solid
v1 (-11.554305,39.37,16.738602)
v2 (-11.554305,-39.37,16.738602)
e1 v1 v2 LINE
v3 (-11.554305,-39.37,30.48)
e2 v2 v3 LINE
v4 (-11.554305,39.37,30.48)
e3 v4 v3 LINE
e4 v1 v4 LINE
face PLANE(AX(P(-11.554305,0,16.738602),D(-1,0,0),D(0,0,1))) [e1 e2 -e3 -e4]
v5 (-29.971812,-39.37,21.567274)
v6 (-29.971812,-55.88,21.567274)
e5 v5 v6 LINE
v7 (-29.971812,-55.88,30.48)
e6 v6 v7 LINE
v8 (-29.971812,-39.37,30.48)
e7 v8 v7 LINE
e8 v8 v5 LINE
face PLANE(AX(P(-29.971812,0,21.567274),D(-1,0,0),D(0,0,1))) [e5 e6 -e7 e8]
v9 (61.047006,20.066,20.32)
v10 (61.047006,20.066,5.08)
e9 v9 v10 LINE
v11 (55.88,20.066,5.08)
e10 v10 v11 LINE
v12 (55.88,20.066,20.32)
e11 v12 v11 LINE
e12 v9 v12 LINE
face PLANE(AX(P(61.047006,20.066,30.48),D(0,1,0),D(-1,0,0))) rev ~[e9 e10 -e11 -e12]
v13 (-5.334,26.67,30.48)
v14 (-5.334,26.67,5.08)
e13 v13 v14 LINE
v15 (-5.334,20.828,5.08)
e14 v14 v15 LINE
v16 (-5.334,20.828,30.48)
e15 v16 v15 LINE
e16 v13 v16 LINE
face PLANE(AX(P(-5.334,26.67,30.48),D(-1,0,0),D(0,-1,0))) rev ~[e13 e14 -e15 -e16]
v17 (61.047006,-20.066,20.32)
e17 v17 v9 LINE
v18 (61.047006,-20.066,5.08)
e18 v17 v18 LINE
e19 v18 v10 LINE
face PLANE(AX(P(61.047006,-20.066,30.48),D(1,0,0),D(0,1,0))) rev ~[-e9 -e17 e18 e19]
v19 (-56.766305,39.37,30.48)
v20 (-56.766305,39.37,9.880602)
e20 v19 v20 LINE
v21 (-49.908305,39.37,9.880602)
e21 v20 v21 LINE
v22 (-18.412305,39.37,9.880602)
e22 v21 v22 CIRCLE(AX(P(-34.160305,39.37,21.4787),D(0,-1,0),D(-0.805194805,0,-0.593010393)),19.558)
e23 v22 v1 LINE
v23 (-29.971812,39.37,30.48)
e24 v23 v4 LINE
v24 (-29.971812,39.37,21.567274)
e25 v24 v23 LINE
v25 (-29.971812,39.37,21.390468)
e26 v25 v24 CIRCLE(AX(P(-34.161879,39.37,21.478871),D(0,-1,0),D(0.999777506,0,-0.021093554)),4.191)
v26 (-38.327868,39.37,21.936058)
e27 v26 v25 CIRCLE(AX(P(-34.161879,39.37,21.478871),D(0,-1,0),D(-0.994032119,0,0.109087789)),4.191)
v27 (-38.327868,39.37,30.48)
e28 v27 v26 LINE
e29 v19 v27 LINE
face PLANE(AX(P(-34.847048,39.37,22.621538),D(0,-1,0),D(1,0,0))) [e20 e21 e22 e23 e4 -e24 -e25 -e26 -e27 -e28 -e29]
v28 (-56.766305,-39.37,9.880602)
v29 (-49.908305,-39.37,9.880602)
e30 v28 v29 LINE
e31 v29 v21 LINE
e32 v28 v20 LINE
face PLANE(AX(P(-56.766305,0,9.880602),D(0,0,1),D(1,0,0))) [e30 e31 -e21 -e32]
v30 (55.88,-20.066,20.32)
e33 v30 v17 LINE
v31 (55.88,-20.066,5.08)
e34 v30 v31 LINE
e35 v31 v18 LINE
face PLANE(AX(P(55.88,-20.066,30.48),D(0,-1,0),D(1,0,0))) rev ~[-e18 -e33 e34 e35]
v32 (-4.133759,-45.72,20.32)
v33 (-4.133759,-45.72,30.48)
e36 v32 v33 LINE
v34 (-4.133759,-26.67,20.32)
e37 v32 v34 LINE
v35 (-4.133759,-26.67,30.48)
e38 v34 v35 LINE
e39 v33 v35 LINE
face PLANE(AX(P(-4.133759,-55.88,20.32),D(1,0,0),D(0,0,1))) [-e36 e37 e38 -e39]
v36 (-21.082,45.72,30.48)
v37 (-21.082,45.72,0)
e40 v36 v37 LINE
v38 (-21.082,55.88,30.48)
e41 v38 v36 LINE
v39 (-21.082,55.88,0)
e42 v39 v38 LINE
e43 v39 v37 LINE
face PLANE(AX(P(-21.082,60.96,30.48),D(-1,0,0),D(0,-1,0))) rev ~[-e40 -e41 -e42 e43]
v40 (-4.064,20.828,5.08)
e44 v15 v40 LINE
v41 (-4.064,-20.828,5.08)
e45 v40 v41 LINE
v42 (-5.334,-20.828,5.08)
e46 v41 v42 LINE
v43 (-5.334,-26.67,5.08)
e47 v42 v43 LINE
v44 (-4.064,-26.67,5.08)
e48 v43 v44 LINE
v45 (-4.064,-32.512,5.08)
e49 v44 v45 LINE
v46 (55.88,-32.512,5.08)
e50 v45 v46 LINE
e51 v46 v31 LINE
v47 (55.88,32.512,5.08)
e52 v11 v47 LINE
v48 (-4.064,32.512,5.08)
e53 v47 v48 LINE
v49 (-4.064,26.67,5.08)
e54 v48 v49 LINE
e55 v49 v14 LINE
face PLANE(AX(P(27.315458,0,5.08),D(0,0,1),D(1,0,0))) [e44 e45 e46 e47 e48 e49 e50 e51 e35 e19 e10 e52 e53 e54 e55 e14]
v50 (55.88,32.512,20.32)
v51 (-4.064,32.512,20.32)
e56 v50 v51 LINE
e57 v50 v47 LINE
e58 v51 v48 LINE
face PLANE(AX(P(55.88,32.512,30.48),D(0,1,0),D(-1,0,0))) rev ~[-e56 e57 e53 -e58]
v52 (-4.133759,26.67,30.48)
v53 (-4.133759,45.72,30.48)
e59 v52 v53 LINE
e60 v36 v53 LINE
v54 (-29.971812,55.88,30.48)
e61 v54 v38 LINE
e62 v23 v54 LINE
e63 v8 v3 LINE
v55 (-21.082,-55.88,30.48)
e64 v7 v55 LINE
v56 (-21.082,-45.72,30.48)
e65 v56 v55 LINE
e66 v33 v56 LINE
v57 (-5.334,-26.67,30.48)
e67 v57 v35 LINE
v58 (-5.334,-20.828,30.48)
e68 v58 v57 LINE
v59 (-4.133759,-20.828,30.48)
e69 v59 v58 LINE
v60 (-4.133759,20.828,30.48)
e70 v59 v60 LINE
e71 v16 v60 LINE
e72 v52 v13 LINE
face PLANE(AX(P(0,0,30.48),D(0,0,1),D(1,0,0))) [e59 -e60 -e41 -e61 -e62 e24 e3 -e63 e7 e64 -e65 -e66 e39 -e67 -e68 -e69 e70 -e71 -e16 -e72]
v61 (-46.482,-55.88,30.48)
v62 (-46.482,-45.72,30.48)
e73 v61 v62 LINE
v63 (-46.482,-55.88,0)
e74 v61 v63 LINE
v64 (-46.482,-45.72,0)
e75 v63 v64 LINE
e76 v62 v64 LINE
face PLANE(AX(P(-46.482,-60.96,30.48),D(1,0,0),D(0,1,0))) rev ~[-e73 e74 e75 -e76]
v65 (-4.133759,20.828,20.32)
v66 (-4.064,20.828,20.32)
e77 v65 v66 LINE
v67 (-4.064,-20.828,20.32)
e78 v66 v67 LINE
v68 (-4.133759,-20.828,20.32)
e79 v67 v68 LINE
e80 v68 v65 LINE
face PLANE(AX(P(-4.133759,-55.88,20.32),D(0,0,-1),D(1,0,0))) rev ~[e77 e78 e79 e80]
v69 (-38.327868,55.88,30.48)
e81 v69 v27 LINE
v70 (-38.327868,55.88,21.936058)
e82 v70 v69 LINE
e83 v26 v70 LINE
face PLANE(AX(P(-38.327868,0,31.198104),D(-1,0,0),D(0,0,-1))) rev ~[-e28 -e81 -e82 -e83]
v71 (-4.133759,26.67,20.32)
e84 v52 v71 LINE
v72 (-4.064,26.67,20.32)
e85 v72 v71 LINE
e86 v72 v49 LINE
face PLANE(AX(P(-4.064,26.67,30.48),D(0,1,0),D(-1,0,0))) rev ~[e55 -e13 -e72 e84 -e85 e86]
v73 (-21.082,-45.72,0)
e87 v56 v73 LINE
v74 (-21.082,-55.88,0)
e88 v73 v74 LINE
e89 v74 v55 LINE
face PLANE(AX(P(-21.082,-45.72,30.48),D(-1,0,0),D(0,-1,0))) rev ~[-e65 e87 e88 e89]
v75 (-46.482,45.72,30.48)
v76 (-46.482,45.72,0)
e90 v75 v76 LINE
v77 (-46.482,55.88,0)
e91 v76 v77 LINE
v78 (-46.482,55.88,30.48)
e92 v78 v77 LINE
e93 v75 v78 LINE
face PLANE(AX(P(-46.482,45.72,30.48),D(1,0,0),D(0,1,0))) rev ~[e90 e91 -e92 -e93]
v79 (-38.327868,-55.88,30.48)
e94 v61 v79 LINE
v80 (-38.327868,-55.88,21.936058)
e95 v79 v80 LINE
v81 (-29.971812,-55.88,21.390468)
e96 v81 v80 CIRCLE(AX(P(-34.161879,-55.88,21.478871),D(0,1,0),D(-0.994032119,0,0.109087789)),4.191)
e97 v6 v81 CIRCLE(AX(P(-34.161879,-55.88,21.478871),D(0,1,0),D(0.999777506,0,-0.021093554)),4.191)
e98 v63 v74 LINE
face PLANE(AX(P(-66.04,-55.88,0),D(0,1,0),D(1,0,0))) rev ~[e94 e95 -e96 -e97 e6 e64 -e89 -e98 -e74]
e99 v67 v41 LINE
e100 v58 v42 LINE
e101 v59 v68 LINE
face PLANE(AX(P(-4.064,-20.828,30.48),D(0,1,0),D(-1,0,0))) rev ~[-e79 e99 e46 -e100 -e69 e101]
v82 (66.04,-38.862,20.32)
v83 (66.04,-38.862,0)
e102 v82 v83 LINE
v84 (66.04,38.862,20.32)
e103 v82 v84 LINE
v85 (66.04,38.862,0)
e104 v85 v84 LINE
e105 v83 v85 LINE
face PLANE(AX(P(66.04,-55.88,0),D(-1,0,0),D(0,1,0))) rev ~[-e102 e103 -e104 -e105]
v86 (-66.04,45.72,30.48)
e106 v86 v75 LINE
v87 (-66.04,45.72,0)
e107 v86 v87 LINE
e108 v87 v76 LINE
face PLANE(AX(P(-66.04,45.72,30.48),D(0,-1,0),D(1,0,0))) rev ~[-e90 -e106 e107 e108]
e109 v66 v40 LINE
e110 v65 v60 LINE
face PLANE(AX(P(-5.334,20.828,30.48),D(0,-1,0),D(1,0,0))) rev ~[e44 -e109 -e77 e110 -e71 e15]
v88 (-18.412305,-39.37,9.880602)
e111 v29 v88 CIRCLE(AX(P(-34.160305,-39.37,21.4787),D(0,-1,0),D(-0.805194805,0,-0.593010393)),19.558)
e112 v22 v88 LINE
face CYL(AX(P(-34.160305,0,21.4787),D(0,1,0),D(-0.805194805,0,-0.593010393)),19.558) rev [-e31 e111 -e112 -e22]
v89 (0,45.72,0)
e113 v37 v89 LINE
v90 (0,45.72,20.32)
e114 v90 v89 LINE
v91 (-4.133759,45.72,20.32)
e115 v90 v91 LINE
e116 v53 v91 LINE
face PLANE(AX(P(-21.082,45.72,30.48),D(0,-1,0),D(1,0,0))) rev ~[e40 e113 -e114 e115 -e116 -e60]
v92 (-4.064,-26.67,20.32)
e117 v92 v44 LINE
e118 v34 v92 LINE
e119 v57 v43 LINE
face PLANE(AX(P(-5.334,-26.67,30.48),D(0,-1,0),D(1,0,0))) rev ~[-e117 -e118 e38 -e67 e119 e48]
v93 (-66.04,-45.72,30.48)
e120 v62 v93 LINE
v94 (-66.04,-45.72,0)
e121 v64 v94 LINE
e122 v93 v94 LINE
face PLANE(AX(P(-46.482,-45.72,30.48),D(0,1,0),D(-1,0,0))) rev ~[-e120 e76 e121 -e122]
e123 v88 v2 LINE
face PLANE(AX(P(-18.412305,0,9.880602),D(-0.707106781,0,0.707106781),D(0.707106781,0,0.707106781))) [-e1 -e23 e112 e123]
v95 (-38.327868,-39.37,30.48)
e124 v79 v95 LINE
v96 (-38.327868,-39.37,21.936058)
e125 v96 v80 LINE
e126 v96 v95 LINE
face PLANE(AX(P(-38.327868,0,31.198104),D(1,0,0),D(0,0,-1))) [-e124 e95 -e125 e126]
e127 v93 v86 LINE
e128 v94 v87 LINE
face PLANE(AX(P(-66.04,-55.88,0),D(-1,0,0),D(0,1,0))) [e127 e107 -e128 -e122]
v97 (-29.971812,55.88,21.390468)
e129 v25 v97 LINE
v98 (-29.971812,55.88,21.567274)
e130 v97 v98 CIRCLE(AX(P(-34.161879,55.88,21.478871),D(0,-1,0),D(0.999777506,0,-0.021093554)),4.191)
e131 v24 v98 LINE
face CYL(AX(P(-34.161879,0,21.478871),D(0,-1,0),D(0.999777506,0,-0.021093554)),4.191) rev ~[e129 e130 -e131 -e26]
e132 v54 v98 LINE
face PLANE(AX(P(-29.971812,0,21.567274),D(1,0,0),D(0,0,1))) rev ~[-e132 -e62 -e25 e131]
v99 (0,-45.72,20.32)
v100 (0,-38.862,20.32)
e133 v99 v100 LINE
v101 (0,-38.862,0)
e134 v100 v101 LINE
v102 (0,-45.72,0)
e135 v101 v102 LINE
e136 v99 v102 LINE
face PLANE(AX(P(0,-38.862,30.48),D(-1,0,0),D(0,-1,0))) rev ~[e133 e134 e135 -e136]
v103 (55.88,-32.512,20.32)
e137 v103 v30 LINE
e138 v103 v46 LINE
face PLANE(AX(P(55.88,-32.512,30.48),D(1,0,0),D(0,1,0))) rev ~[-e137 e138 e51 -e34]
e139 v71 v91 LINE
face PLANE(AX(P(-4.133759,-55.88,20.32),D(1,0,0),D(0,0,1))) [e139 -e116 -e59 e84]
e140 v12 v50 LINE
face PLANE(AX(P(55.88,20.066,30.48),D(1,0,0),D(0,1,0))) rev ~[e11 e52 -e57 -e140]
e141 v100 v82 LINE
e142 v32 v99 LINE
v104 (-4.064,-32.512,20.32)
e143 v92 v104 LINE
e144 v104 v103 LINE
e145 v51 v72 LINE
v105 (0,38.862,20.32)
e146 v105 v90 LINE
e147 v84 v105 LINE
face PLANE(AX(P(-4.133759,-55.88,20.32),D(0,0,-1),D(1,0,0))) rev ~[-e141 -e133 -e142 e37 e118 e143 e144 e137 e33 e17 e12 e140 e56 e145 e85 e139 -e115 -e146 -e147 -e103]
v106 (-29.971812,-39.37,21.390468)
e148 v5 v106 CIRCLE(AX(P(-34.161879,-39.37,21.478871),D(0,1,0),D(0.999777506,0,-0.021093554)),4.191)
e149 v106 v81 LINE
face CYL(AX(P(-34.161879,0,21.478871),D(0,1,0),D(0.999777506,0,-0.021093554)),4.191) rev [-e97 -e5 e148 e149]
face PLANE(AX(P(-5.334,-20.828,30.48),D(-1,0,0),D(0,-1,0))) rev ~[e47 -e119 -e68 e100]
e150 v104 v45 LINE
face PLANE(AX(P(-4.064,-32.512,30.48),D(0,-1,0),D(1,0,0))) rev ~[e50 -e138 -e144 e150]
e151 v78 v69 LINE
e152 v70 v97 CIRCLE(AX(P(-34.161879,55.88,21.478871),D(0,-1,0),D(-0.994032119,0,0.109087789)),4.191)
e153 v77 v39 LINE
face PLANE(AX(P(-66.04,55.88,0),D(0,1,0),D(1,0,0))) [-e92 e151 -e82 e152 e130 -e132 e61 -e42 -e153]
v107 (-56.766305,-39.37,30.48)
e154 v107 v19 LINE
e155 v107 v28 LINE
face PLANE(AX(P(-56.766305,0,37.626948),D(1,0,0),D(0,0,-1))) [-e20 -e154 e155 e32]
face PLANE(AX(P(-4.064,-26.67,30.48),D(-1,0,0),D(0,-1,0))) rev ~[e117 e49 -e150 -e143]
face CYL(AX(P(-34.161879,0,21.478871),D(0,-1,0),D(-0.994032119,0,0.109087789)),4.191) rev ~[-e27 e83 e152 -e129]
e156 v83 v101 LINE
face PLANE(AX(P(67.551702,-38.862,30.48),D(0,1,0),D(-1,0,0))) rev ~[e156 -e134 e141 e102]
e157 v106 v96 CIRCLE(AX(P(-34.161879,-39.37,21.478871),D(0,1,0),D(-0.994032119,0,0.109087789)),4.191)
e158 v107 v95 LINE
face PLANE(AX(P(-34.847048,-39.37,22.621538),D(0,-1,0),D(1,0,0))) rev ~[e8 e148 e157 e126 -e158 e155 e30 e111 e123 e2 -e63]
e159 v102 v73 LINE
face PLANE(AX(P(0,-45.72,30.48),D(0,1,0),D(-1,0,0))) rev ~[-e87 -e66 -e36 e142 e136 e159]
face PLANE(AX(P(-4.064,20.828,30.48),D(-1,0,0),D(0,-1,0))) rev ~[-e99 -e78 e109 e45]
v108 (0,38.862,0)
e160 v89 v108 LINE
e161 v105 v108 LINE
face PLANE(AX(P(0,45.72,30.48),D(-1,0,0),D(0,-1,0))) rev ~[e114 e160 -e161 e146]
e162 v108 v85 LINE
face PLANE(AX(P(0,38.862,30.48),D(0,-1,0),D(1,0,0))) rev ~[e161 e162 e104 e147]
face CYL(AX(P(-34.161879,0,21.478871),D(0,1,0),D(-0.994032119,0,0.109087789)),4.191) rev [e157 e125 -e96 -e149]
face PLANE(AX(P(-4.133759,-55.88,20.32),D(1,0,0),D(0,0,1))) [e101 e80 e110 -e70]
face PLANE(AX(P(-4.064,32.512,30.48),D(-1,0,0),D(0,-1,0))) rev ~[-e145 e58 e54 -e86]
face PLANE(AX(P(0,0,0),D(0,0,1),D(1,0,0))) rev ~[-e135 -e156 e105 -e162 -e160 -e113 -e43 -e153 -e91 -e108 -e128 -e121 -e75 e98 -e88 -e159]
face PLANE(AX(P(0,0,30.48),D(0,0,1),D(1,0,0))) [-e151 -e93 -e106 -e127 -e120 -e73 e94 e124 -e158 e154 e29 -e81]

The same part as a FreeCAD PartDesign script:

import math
import FreeCAD as App
import Part
import Sketcher
Q = App.Units.Quantity


def add_polygon(sketch, points):
    """Adds a closed chain of lines whose ends are joined by coincident constraints."""
    first, n = sketch.GeometryCount, len(points)
    for a, b in zip(points, points[1:] + points[:1]):
        sketch.addGeometry(Part.LineSegment(App.Vector(*a, 0), App.Vector(*b, 0)), False)
    for i in range(n):
        sketch.addConstraint(Sketcher.Constraint("Coincident", first + i, 2, first + (i + 1) % n, 1))

doc = App.newDocument("Part")
body = doc.addObject("PartDesign::Body", "Body")

# Sketch on XY plane
sketch1 = body.newObject("Sketcher::SketchObject", "Sketch")
sketch1.AttachmentSupport = (doc.getObject("XY_Plane"), [""])
sketch1.MapMode = "FlatFace"
add_polygon(sketch1, [(-66, 56), (-66, -56), (66, -56), (66, 56)])  # lines 0-3
sketch1.addConstraint([
    Sketcher.Constraint("Vertical", 0),
    Sketcher.Constraint("Horizontal", 1),
    Sketcher.Constraint("Vertical", 2),
    Sketcher.Constraint("Horizontal", 3),
    Sketcher.Constraint("Symmetric", 0, 2, 2, 2, -1, 1),
    Sketcher.Constraint("DistanceX", 1, 1, 1, 2, Q("5.2 in")),
    Sketcher.Constraint("DistanceY", 0, 2, 0, 1, Q("4.4 in")),
])
pad1 = body.newObject("PartDesign::Pad", "Pad")
pad1.Profile = sketch1
pad1.Length = Q("1.2 in")

# Sketch on XY plane
sketch2 = body.newObject("Sketcher::SketchObject", "Sketch001")
sketch2.AttachmentSupport = (doc.getObject("XY_Plane"), [""])
sketch2.MapMode = "FlatFace"
sketch2.AttachmentOffset = App.Placement(App.Vector(0, 0, 1.2 * 25.4), App.Rotation())
add_polygon(sketch2, [(55.9, 32.5), (-4.1, 32.5), (-4.1, 26.7), (-5.3, 26.7), (-5.3, 20.8), (-4.1, 20.8), (-4.1, -20.8), (-5.3, -20.8), (-5.3, -26.7), (-4.1, -26.7), (-4.1, -32.5), (55.9, -32.5), (55.9, -20.1), (61, -20.1), (61, 20.1), (55.9, 20.1)])  # lines 0-15
sketch2.addConstraint([
    Sketcher.Constraint("Horizontal", 0),
    Sketcher.Constraint("Vertical", 1),
    Sketcher.Constraint("Horizontal", 2),
    Sketcher.Constraint("Vertical", 3),
    Sketcher.Constraint("Horizontal", 4),
    Sketcher.Constraint("Vertical", 5),
    Sketcher.Constraint("Horizontal", 6),
    Sketcher.Constraint("Vertical", 7),
    Sketcher.Constraint("Horizontal", 8),
    Sketcher.Constraint("Vertical", 9),
    Sketcher.Constraint("Horizontal", 10),
    Sketcher.Constraint("Vertical", 11),
    Sketcher.Constraint("Horizontal", 12),
    Sketcher.Constraint("Vertical", 13),
    Sketcher.Constraint("Horizontal", 14),
    Sketcher.Constraint("Vertical", 15),
    Sketcher.Constraint("Symmetric", 3, 2, 6, 2, -1),
    Sketcher.Constraint("Symmetric", 1, 2, 8, 2, -1),
    Sketcher.Constraint("Symmetric", 11, 2, 14, 2, -1),
    Sketcher.Constraint("Vertical", 1, 2, 4, 2),
    Sketcher.Constraint("Equal", 1, 3),
    Sketcher.Constraint("Equal", 7, 9),
    Sketcher.Constraint("DistanceX", 0, 2, 0, 1, Q("2.36 in")),
    Sketcher.Constraint("DistanceX", 2, 2, 2, 1, Q("0.05 in")),
    Sketcher.Constraint("DistanceY", 1, 2, 1, 1, Q("0.23 in")),
    Sketcher.Constraint("DistanceY", 5, 2, 5, 1, Q("1.64 in")),
    Sketcher.Constraint("DistanceY", 11, 1, 11, 2, Q("0.49 in")),
    Sketcher.Constraint("DistanceX", -1, 1, 10, 2, Q("2.2 in")),
    Sketcher.Constraint("DistanceX", 12, 1, 12, 2, 5.167006),
])
pocket1 = body.newObject("PartDesign::Pocket", "Pocket")
pocket1.Profile = sketch2
pocket1.Length = Q("1 in")

# Sketch on XZ plane
sketch3 = body.newObject("Sketcher::SketchObject", "Sketch002")
sketch3.AttachmentSupport = (doc.getObject("XZ_Plane"), [""])
sketch3.MapMode = "FlatFace"
sketch3.addGeometry([
    Part.LineSegment(App.Vector(-57, 10, 0), App.Vector(-50, 10, 0)),  # 0
    Part.ArcOfCircle(Part.Circle(App.Vector(-34, 21, 0), App.Vector(0, 0, 1), 20), math.radians(-144), math.radians(-36)),  # 1
    Part.LineSegment(App.Vector(-18, 10, 0), App.Vector(-12, 17, 0)),  # 2
    Part.LineSegment(App.Vector(-12, 17, 0), App.Vector(-12, 38, 0)),  # 3
    Part.LineSegment(App.Vector(-12, 38, 0), App.Vector(-57, 38, 0)),  # 4
    Part.LineSegment(App.Vector(-57, 38, 0), App.Vector(-57, 10, 0)),  # 5
], False)
sketch3.addConstraint([
    Sketcher.Constraint("Coincident", 0, 2, 1, 1),
    Sketcher.Constraint("Coincident", 1, 2, 2, 1),
    Sketcher.Constraint("Coincident", 2, 2, 3, 1),
    Sketcher.Constraint("Coincident", 3, 2, 4, 1),
    Sketcher.Constraint("Coincident", 4, 2, 5, 1),
    Sketcher.Constraint("Coincident", 5, 2, 0, 1),
    Sketcher.Constraint("Horizontal", 0),
    Sketcher.Constraint("Vertical", 3),
    Sketcher.Constraint("Horizontal", 4),
    Sketcher.Constraint("Vertical", 5),
    Sketcher.Constraint("Horizontal", 0, 2, 1, 2),
    Sketcher.Constraint("Radius", 1, Q("0.77 in")),
    Sketcher.Constraint("Angle", 2, Q("45 deg")),
    Sketcher.Constraint("DistanceX", 0, 1, 0, 2, Q("0.27 in")),
    Sketcher.Constraint("DistanceX", 4, 2, 4, 1, Q("1.78 in")),
    Sketcher.Constraint("DistanceX", 0, 2, 1, 3, Q("0.62 in")),
    Sketcher.Constraint("DistanceY", -1, 1, 0, 2, Q("0.3890001 in")),
    Sketcher.Constraint("DistanceY", 3, 1, 3, 2, 20.888346),
    Sketcher.Constraint("DistanceX", 1, 3, -1, 1, 34.160305),
])
pocket2 = body.newObject("PartDesign::Pocket", "Pocket001")
pocket2.Profile = sketch3
pocket2.Type = "TwoLengths"
pocket2.Length = Q("1.55 in")
pocket2.Length2 = Q("1.55 in")
pocket2.Reversed = True

# Sketch on XZ plane
sketch4 = body.newObject("Sketcher::SketchObject", "Sketch003")
sketch4.AttachmentSupport = (doc.getObject("XZ_Plane"), [""])
sketch4.MapMode = "FlatFace"
sketch4.addGeometry([
    Part.LineSegment(App.Vector(-38.33, 31.2, 0), App.Vector(-38.33, 21.94, 0)),  # 0
    Part.ArcOfCircle(Part.Circle(App.Vector(-34.16, 21.48, 0), App.Vector(0, 0, 1), 4.19), math.radians(174), math.radians(359)),  # 1
    Part.ArcOfCircle(Part.Circle(App.Vector(-34.16, 21.48, 0), App.Vector(0, 0, 1), 4.19), math.radians(-1.21), math.radians(1.21)),  # 2
    Part.LineSegment(App.Vector(-29.97, 21.57, 0), App.Vector(-29.97, 31.2, 0)),  # 3
    Part.LineSegment(App.Vector(-29.97, 31.2, 0), App.Vector(-38.33, 31.2, 0)),  # 4
], False)
sketch4.addConstraint([
    Sketcher.Constraint("Coincident", 0, 2, 1, 1),
    Sketcher.Constraint("Tangent", 1, 2, 2, 1),
    Sketcher.Constraint("Coincident", 2, 2, 3, 1),
    Sketcher.Constraint("Coincident", 3, 2, 4, 1),
    Sketcher.Constraint("Coincident", 4, 2, 0, 1),
    Sketcher.Constraint("Vertical", 0),
    Sketcher.Constraint("Vertical", 3),
    Sketcher.Constraint("Horizontal", 4),
    Sketcher.Constraint("Equal", 1, 2),
    Sketcher.Constraint("Vertical", 1, 2, 2, 2),
    Sketcher.Constraint("Radius", 1, Q("0.165 in")),
    Sketcher.Constraint("DistanceY", 3, 1, 3, 2, 9.63083),
    Sketcher.Constraint("DistanceX", 4, 2, 4, 1, 8.356056),
    Sketcher.Constraint("DistanceY", 0, 2, 0, 1, 9.262047),
    Sketcher.Constraint("DistanceX", 1, 3, -1, 1, 34.161879),
    Sketcher.Constraint("DistanceY", -1, 1, 1, 3, 21.478871),
])
pocket3 = body.newObject("PartDesign::Pocket", "Pocket002")
pocket3.Profile = sketch4
pocket3.Type = "ThroughAll"
pocket3.Midplane = True

# Sketch on XZ plane
sketch5 = body.newObject("Sketcher::SketchObject", "Sketch004")
sketch5.AttachmentSupport = (doc.getObject("XZ_Plane"), [""])
sketch5.MapMode = "FlatFace"
sketch5.AttachmentOffset = App.Placement(App.Vector(0, 0, 2.2 * 25.4), App.Rotation())
add_polygon(sketch5, [(-4, 30), (-4, 20), (66, 20), (66, 30)])  # lines 0-3
sketch5.addConstraint([
    Sketcher.Constraint("Vertical", 0),
    Sketcher.Constraint("Horizontal", 1),
    Sketcher.Constraint("Vertical", 2),
    Sketcher.Constraint("Horizontal", 3),
    Sketcher.Constraint("DistanceY", 0, 2, 0, 1, Q("0.4 in")),
    Sketcher.Constraint("DistanceY", -1, 1, 0, 2, Q("0.8 in")),
    Sketcher.Constraint("DistanceX", -1, 1, 1, 2, Q("2.6 in")),
    Sketcher.Constraint("DistanceX", 1, 1, 1, 2, 70.173759),
])
pocket4 = body.newObject("PartDesign::Pocket", "Pocket003")
pocket4.Profile = sketch5
pocket4.Length = 124.52238

# Sketch on XY plane
sketch6 = body.newObject("Sketcher::SketchObject", "Sketch005")
sketch6.AttachmentSupport = (doc.getObject("XY_Plane"), [""])
sketch6.MapMode = "FlatFace"
sketch6.AttachmentOffset = App.Placement(App.Vector(0, 0, 1.2 * 25.4), App.Rotation())
add_polygon(sketch6, [(-109, 92), (-109, -100), (110, -100), (110, 92)])  # lines 0-3
add_polygon(sketch6, [(-46, -46), (-66, -46), (-66, 46), (-46, 46), (-46, 61), (-21, 61), (-21, 46), (0, 46), (0, 39), (68, 39), (68, -39), (0, -39), (0, -46), (-21, -46), (-21, -61), (-46, -61)])  # lines 4-19
sketch6.addConstraint([
    Sketcher.Constraint("Vertical", 0),
    Sketcher.Constraint("Horizontal", 1),
    Sketcher.Constraint("Vertical", 2),
    Sketcher.Constraint("Horizontal", 3),
    Sketcher.Constraint("Horizontal", 4),
    Sketcher.Constraint("Vertical", 5),
    Sketcher.Constraint("Horizontal", 6),
    Sketcher.Constraint("Vertical", 7),
    Sketcher.Constraint("Horizontal", 8),
    Sketcher.Constraint("Vertical", 9),
    Sketcher.Constraint("Horizontal", 10),
    Sketcher.Constraint("Vertical", 11),
    Sketcher.Constraint("Horizontal", 12),
    Sketcher.Constraint("Vertical", 13),
    Sketcher.Constraint("Horizontal", 14),
    Sketcher.Constraint("Vertical", 15),
    Sketcher.Constraint("Horizontal", 16),
    Sketcher.Constraint("Vertical", 17),
    Sketcher.Constraint("Horizontal", 18),
    Sketcher.Constraint("Vertical", 19),
    Sketcher.Constraint("Symmetric", 11, 2, 14, 2, -1, 1),
    Sketcher.Constraint("Symmetric", 10, 2, 15, 2, -1),
    Sketcher.Constraint("Symmetric", 8, 2, 17, 2, -1),
    Sketcher.Constraint("Symmetric", 6, 2, 19, 2, -1),
    Sketcher.Constraint("Horizontal", 6, 2, 9, 2),
    Sketcher.Constraint("DistanceX", 8, 1, 8, 2, Q("1 in")),
    Sketcher.Constraint("DistanceY", 5, 1, 5, 2, Q("3.6 in")),
    Sketcher.Constraint("DistanceY", 7, 1, 7, 2, Q("0.6 in")),
    Sketcher.Constraint("DistanceX", 4, 2, 4, 1, Q("0.77 in")),
    Sketcher.Constraint("DistanceX", 10, 1, 10, 2, Q("0.83 in")),
    Sketcher.Constraint("DistanceY", 11, 2, 11, 1, Q("0.27 in")),
    Sketcher.Constraint("DistanceX", 1, 1, 1, 2, 219.022006),
    Sketcher.Constraint("DistanceX", 12, 1, 12, 2, 67.551702),
    Sketcher.Constraint("DistanceY", 0, 2, 0, 1, 191.397592),
    Sketcher.Constraint("DistanceX", 12, 2, 2, 2, 42.876631),
    Sketcher.Constraint("DistanceY", 0, 2, -1, 1, 99.695347),
])
pocket5 = body.newObject("PartDesign::Pocket", "Pocket004")
pocket5.Profile = sketch6
pocket5.Length = 40.60273

doc.recompute()
